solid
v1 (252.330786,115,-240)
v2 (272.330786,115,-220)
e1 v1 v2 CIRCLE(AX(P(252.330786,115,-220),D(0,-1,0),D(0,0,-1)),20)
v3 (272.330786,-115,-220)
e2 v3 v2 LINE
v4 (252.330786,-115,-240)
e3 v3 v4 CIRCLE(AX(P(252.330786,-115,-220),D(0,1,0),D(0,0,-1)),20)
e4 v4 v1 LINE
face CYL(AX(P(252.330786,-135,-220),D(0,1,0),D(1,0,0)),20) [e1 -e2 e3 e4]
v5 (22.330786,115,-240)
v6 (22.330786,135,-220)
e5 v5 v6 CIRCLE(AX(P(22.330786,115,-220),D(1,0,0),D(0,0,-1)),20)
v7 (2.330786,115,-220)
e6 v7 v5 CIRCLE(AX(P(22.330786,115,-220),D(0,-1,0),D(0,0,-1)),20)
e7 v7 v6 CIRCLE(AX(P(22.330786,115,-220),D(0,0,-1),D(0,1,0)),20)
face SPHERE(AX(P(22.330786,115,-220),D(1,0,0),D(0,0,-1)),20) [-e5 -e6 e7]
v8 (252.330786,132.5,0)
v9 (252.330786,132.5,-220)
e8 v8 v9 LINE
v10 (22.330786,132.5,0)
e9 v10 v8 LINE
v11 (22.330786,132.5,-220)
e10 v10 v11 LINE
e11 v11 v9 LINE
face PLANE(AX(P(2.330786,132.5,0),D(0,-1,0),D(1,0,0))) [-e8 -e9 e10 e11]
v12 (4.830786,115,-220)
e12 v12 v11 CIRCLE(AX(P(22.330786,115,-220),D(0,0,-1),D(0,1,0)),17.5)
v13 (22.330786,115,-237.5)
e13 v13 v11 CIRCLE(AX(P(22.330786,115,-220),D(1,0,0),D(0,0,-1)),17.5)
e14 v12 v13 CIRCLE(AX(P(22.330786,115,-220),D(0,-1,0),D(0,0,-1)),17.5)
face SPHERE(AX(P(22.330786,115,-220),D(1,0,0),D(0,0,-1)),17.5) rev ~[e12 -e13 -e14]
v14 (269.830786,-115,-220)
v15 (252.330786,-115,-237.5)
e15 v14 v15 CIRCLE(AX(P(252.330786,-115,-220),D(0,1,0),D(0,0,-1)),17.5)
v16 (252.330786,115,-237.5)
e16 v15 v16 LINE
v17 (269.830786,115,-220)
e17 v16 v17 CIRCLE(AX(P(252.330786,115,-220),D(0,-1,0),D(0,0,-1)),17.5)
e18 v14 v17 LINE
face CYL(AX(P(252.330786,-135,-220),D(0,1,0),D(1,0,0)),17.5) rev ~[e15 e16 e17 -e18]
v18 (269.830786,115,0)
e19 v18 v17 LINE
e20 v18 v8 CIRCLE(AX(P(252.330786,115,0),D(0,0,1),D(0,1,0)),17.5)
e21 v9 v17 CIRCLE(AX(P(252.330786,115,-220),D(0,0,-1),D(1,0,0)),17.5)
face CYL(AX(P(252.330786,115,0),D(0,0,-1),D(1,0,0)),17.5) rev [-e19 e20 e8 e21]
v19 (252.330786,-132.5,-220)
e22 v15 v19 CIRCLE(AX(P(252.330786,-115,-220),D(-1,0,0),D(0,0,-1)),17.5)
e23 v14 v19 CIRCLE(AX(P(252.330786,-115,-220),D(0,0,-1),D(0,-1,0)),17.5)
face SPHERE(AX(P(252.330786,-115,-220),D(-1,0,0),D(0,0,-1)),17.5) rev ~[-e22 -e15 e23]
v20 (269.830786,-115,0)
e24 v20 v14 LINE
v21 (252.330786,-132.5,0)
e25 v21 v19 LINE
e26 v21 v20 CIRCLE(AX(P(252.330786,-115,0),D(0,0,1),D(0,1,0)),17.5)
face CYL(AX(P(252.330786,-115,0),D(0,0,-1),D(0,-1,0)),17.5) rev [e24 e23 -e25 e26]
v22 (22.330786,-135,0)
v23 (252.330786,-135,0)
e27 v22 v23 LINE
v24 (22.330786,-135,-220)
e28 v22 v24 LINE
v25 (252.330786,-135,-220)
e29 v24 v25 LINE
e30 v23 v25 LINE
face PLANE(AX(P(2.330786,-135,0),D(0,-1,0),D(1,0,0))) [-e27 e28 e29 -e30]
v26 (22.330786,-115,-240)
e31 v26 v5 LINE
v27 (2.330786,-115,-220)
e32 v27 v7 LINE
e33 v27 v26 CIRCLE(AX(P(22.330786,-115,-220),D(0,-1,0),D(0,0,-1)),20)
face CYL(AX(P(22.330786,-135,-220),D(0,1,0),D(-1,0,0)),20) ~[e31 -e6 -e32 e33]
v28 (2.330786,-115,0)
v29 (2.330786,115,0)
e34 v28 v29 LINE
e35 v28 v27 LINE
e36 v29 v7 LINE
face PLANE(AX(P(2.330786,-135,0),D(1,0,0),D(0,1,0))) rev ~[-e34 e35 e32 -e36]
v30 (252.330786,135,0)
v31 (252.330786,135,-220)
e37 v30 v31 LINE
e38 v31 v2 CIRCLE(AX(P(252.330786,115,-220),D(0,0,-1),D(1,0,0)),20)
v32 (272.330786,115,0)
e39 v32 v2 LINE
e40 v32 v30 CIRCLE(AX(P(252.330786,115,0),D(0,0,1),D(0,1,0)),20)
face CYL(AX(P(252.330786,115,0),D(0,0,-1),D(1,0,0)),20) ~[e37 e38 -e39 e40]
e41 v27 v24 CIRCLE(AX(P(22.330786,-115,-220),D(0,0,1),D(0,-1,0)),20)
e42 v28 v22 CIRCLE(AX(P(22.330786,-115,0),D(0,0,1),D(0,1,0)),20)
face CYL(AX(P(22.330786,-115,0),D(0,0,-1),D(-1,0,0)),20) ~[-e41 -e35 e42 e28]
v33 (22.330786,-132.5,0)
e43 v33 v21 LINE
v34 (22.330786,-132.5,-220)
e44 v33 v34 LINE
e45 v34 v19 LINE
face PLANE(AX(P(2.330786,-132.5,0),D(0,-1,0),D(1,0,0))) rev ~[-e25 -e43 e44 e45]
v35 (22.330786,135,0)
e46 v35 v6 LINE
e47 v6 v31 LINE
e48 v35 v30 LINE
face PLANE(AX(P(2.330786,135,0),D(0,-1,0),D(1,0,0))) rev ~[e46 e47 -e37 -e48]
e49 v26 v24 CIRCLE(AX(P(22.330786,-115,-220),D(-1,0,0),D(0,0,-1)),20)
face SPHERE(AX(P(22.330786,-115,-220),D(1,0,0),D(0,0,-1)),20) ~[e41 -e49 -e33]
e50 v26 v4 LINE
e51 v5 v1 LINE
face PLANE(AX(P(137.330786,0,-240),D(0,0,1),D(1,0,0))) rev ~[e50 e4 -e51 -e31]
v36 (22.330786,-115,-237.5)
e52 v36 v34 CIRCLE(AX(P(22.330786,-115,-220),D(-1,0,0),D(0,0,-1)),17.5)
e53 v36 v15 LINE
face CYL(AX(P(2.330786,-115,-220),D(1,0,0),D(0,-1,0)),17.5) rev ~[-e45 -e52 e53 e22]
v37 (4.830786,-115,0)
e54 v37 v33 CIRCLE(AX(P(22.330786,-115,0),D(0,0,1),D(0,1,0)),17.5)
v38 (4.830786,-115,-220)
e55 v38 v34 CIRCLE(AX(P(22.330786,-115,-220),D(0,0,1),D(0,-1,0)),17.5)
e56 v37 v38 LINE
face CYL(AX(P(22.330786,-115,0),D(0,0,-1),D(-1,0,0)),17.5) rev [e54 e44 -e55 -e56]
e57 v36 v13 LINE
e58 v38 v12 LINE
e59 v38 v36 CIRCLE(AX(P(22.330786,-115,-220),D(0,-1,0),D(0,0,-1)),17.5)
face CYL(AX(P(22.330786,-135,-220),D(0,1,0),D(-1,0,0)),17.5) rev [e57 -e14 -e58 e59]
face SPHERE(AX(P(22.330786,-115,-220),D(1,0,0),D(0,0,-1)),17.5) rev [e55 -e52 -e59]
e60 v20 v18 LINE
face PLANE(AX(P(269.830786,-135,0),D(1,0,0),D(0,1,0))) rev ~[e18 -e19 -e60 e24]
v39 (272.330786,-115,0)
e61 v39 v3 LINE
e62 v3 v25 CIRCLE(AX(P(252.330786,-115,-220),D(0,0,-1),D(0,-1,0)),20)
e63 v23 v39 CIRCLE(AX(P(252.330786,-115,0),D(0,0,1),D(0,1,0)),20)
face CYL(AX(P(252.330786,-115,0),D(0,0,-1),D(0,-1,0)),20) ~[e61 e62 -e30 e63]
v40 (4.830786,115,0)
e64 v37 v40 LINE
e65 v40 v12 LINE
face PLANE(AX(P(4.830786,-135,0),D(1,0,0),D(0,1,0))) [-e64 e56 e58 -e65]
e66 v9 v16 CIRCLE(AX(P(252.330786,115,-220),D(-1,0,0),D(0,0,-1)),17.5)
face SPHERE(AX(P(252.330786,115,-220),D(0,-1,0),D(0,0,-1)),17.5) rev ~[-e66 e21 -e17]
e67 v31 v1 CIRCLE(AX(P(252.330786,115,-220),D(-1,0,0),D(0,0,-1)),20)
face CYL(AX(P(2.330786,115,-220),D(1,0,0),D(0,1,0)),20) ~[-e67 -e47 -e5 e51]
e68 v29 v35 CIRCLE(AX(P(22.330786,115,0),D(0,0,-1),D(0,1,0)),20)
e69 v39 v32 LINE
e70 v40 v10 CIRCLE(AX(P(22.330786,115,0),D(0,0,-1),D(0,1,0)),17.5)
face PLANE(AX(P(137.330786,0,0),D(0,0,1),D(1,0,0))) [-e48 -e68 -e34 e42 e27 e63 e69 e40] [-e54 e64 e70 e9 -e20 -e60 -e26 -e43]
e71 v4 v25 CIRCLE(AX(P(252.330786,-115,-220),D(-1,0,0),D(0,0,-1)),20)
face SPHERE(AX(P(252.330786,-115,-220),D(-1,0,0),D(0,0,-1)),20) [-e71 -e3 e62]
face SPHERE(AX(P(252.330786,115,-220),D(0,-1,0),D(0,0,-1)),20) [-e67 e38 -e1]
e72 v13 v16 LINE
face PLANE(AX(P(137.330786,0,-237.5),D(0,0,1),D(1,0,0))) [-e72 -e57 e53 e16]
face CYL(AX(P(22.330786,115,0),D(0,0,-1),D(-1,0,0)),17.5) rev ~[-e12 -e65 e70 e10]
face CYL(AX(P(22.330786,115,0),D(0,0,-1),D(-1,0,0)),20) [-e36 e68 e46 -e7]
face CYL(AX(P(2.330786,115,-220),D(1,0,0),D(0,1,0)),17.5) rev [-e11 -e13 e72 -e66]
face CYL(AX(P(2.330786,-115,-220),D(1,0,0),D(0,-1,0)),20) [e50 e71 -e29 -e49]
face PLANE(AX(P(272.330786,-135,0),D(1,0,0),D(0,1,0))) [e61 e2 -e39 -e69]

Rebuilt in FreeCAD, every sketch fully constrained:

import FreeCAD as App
import Part
import Sketcher

V = App.Vector


def edges_at(feature, points):
    """Names of the edges that pass closest to the given points."""
    edges = feature.Shape.Edges
    near = lambda p: min(range(len(edges)), key=lambda i: edges[i].distToShape(Part.Vertex(*p))[0])
    return sorted({f"Edge{near(p) + 1}" for p in points})


def faces_at(feature, points):
    """Names of the faces that lie closest to the given points."""
    faces = feature.Shape.Faces
    near = lambda p: min(range(len(faces)), key=lambda i: faces[i].distToShape(Part.Vertex(*p))[0])
    return sorted({f"Face{near(p) + 1}" for p in points})

doc = App.newDocument("Part")
body = doc.addObject("PartDesign::Body", "Body")

sketch1 = doc.addObject("Sketcher::SketchObject", "Sketch")
body.addObject(sketch1)
sketch1.AttachmentSupport = (doc.XY_Plane, [""])
sketch1.MapMode = "FlatFace"
sketch1.addGeometry(Part.LineSegment(V(2, 135, 0), V(2, -135, 0)), False)
sketch1.addGeometry(Part.LineSegment(V(2, -135, 0), V(272, -135, 0)), False)
sketch1.addGeometry(Part.LineSegment(V(272, -135, 0), V(272, 135, 0)), False)
sketch1.addGeometry(Part.LineSegment(V(272, 135, 0), V(2, 135, 0)), False)
sketch1.addConstraint(Sketcher.Constraint("Coincident", 0, 2, 1, 1))
sketch1.addConstraint(Sketcher.Constraint("Coincident", 1, 2, 2, 1))
sketch1.addConstraint(Sketcher.Constraint("Coincident", 2, 2, 3, 1))
sketch1.addConstraint(Sketcher.Constraint("Coincident", 3, 2, 0, 1))
sketch1.addConstraint(Sketcher.Constraint("Vertical", 0))
sketch1.addConstraint(Sketcher.Constraint("Horizontal", 1))
sketch1.addConstraint(Sketcher.Constraint("Vertical", 2))
sketch1.addConstraint(Sketcher.Constraint("Horizontal", 3))
sketch1.addConstraint(Sketcher.Constraint("Equal", 3, 0))
sketch1.addConstraint(Sketcher.Constraint("DistanceX", 1, 1, 1, 2, 270.0))
sketch1.addConstraint(Sketcher.Constraint("DistanceY", 0, 2, -1, 1, 135.0))
sketch1.addConstraint(Sketcher.Constraint("DistanceX", -1, 1, 0, 2, 2.330786))
pad1 = doc.addObject("PartDesign::Pad", "Pad")
body.addObject(pad1)
pad1.Profile = sketch1
pad1.Length = 240
pad1.Reversed = True
doc.recompute()

fillet = doc.addObject("PartDesign::Fillet", "Fillet")
body.addObject(fillet)
fillet.Base = (pad1, edges_at(pad1, [
    (137.331, -135, -240),
    (272.331, 0, -240),
    (137.331, 135, -240),
    (2.331, 0, -240),
    (2.331, -135, -120),
    (272.331, -135, -120),
    (272.331, 135, -120),
    (2.331, 135, -120),
]))
fillet.Radius = 20
doc.recompute()

thickness = doc.addObject("PartDesign::Thickness", "Thickness")
body.addObject(thickness)
thickness.Base = (fillet, faces_at(fillet, [(137.331, 0, 0)]))
thickness.Value = 2.5
thickness.Reversed = True
thickness.Join = "Arc"

doc.recompute()
